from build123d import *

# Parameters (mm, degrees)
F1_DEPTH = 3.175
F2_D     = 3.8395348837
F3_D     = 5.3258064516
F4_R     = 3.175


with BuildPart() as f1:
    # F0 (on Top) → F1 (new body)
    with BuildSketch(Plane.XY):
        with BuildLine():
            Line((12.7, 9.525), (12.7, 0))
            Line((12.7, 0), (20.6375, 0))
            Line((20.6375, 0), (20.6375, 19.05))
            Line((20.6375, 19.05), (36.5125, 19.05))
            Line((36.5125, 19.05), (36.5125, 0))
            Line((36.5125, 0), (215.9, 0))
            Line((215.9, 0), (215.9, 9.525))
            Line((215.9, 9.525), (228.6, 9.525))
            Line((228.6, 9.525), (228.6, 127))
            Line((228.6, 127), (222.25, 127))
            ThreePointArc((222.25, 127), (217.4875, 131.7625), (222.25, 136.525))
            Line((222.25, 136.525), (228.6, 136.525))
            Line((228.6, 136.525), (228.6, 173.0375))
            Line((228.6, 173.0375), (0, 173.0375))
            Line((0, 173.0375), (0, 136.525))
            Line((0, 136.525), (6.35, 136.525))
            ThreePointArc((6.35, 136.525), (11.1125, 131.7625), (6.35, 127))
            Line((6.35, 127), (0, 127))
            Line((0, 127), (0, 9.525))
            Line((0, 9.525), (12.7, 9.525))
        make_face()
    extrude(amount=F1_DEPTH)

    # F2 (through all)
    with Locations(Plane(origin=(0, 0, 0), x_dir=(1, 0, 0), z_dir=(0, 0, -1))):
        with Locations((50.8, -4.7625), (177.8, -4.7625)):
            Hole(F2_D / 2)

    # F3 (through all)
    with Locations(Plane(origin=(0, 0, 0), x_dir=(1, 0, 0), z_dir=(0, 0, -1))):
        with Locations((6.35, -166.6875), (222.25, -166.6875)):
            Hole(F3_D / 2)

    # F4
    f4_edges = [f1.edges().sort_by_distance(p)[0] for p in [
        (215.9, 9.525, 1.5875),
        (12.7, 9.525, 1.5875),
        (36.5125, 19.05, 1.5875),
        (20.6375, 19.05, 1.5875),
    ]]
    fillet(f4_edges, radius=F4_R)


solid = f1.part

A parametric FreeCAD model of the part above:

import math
import FreeCAD as App
import Part
import Sketcher
Q = App.Units.Quantity


def edges_at(feature, points):
    """Names of the edges that pass closest to the given points."""
    edges = feature.Shape.Edges
    near = lambda p: min(range(len(edges)), key=lambda i: edges[i].distToShape(Part.Vertex(*p))[0])
    return sorted({f"Edge{near(p) + 1}" for p in points})

doc = App.newDocument("Part")
body = doc.addObject("PartDesign::Body", "Body")

sketch1 = body.newObject("Sketcher::SketchObject", "Sketch")
sketch1.AttachmentSupport = (doc.getObject("XY_Plane"), [""])
sketch1.MapMode = "FlatFace"
sketch1.addGeometry([
    Part.LineSegment(App.Vector(12.7, 9.5, 0), App.Vector(12.7, 0, 0)),
    Part.LineSegment(App.Vector(12.7, 0, 0), App.Vector(20.6, 0, 0)),
    Part.LineSegment(App.Vector(20.6, 0, 0), App.Vector(20.6, 19.1, 0)),
    Part.LineSegment(App.Vector(20.6, 19.1, 0), App.Vector(36.5, 19.1, 0)),
    Part.LineSegment(App.Vector(36.5, 19.1, 0), App.Vector(36.5, 0, 0)),
    Part.LineSegment(App.Vector(36.5, 0, 0), App.Vector(215.9, 0, 0)),
    Part.LineSegment(App.Vector(215.9, 0, 0), App.Vector(215.9, 9.5, 0)),
    Part.LineSegment(App.Vector(215.9, 9.5, 0), App.Vector(228.6, 9.5, 0)),
    Part.LineSegment(App.Vector(228.6, 9.5, 0), App.Vector(228.6, 127, 0)),
    Part.LineSegment(App.Vector(228.6, 127, 0), App.Vector(222.2, 127, 0)),
    Part.ArcOfCircle(Part.Circle(App.Vector(222.2, 131.8, 0), App.Vector(0, 0, 1), 4.8), math.radians(90), math.radians(270)),
    Part.LineSegment(App.Vector(222.2, 136.5, 0), App.Vector(228.6, 136.5, 0)),
    Part.LineSegment(App.Vector(228.6, 136.5, 0), App.Vector(228.6, 173, 0)),
    Part.LineSegment(App.Vector(228.6, 173, 0), App.Vector(0, 173, 0)),
    Part.LineSegment(App.Vector(0, 173, 0), App.Vector(0, 136.5, 0)),
    Part.LineSegment(App.Vector(0, 136.5, 0), App.Vector(6.3, 136.5, 0)),
    Part.ArcOfCircle(Part.Circle(App.Vector(6.3, 131.8, 0), App.Vector(0, 0, 1), 4.8), math.radians(-90), math.radians(90)),
    Part.LineSegment(App.Vector(6.3, 127, 0), App.Vector(0, 127, 0)),
    Part.LineSegment(App.Vector(0, 127, 0), App.Vector(0, 9.5, 0)),
    Part.LineSegment(App.Vector(0, 9.5, 0), App.Vector(12.7, 9.5, 0)),
], False)
sketch1.addConstraint([
    Sketcher.Constraint("Coincident", 0, 2, 1, 1),
    Sketcher.Constraint("Coincident", 1, 2, 2, 1),
    Sketcher.Constraint("Coincident", 2, 2, 3, 1),
    Sketcher.Constraint("Coincident", 3, 2, 4, 1),
    Sketcher.Constraint("Coincident", 4, 2, 5, 1),
    Sketcher.Constraint("Coincident", 5, 2, 6, 1),
    Sketcher.Constraint("Coincident", 6, 2, 7, 1),
    Sketcher.Constraint("Coincident", 7, 2, 8, 1),
    Sketcher.Constraint("Coincident", 8, 2, 9, 1),
    Sketcher.Constraint("Tangent", 9, 2, 10, 2),
    Sketcher.Constraint("Tangent", 10, 1, 11, 1),
    Sketcher.Constraint("Coincident", 11, 2, 12, 1),
    Sketcher.Constraint("Coincident", 12, 2, 13, 1),
    Sketcher.Constraint("Coincident", 13, 2, 14, 1),
    Sketcher.Constraint("Coincident", 14, 2, 15, 1),
    Sketcher.Constraint("Tangent", 15, 2, 16, 2),
    Sketcher.Constraint("Tangent", 16, 1, 17, 1),
    Sketcher.Constraint("Coincident", 17, 2, 18, 1),
    Sketcher.Constraint("Coincident", 18, 2, 19, 1),
    Sketcher.Constraint("Coincident", 19, 2, 0, 1),
    Sketcher.Constraint("Vertical", 0),
    Sketcher.Constraint("Horizontal", 1),
    Sketcher.Constraint("Vertical", 2),
    Sketcher.Constraint("Horizontal", 3),
    Sketcher.Constraint("Vertical", 4),
    Sketcher.Constraint("Horizontal", 5),
    Sketcher.Constraint("Vertical", 6),
    Sketcher.Constraint("Horizontal", 7),
    Sketcher.Constraint("Vertical", 8),
    Sketcher.Constraint("Horizontal", 9),
    Sketcher.Constraint("Horizontal", 11),
    Sketcher.Constraint("Vertical", 12),
    Sketcher.Constraint("Horizontal", 13),
    Sketcher.Constraint("Vertical", 14),
    Sketcher.Constraint("Horizontal", 15),
    Sketcher.Constraint("Horizontal", 17),
    Sketcher.Constraint("Vertical", 18),
    Sketcher.Constraint("Horizontal", 19),
    Sketcher.Constraint("Equal", 10, 16),
    Sketcher.Constraint("PointOnObject", 0, 2, -1),
    Sketcher.Constraint("PointOnObject", 4, 2, -1),
    Sketcher.Constraint("PointOnObject", 13, 2, -2),
    Sketcher.Constraint("PointOnObject", 17, 2, -2),
    Sketcher.Constraint("Horizontal", 10, 3, 16, 3),
    Sketcher.Constraint("Horizontal", 7, 2, 18, 2),
    Sketcher.Constraint("Vertical", 8, 2, 11, 2),
    Sketcher.Constraint("Equal", 11, 15),
    Sketcher.Constraint("Equal", 7, 19),
    Sketcher.Constraint("DistanceX", 13, 2, 13, 1, Q("9 in")),
    Sketcher.Constraint("DistanceX", 7, 1, 7, 2, Q("0.5 in")),
    Sketcher.Constraint("DistanceY", -1, 1, 8, 2, Q("5 in")),
    Sketcher.Constraint("Radius", 10, Q("0.1875 in")),
    Sketcher.Constraint("DistanceY", 6, 2, 10, 1, Q("5 in")),
    Sketcher.Constraint("DistanceX", 9, 2, 9, 1, Q("0.25 in")),
    Sketcher.Constraint("DistanceY", 2, 1, 2, 2, Q("0.75 in")),
    Sketcher.Constraint("DistanceX", 1, 1, 1, 2, Q("0.3125 in")),
    Sketcher.Constraint("DistanceX", 3, 1, 3, 2, Q("0.625 in")),
    Sketcher.Constraint("DistanceY", 12, 1, 12, 2, Q("1.4375 in")),
])
pad1 = body.newObject("PartDesign::Pad", "Pad")
pad1.Profile = sketch1
pad1.Length = Q("0.125 in")

sketch2 = body.newObject("Sketcher::SketchObject", "Sketch001")
sketch2.AttachmentSupport = (doc.getObject("XY_Plane"), [""])
sketch2.MapMode = "FlatFace"
sketch2.addGeometry([
    Part.Circle(App.Vector(50.8, 4.8, 0), App.Vector(0, 0, 1), 1.9),
    Part.Circle(App.Vector(177.8, 4.8, 0), App.Vector(0, 0, 1), 1.9),
], False)
sketch2.addConstraint([
    Sketcher.Constraint("Equal", 0, 1),
    Sketcher.Constraint("Horizontal", 0, 3, 1, 3),
    Sketcher.Constraint("DistanceX", -1, 1, 0, 3, Q("2 in")),
    Sketcher.Constraint("DistanceX", -1, 1, 1, 3, Q("7 in")),
    Sketcher.Constraint("DistanceY", -1, 1, 0, 3, Q("0.1875 in")),
    Sketcher.Constraint("Diameter", 0, 3.839535),
])
doc.recompute()
hole = body.newObject("PartDesign::Hole", "Hole")
hole.Profile = sketch2
hole.ThreadType = "None"
hole.Diameter = 3.839535
hole.DepthType = "ThroughAll"
hole.Reversed = True

sketch3 = body.newObject("Sketcher::SketchObject", "Sketch002")
sketch3.AttachmentSupport = (doc.getObject("XY_Plane"), [""])
sketch3.MapMode = "FlatFace"
sketch3.addGeometry([
    Part.Circle(App.Vector(6.3, 166.7, 0), App.Vector(0, 0, 1), 2.7),
    Part.Circle(App.Vector(222.2, 166.7, 0), App.Vector(0, 0, 1), 2.7),
], False)
sketch3.addConstraint([
    Sketcher.Constraint("Equal", 0, 1),
    Sketcher.Constraint("Horizontal", 0, 3, 1, 3),
    Sketcher.Constraint("DistanceX", 0, 3, 1, 3, Q("8.5 in")),
    Sketcher.Constraint("DistanceX", -1, 1, 0, 3, Q("0.25 in")),
    Sketcher.Constraint("DistanceY", -1, 1, 0, 3, Q("6.5625 in")),
    Sketcher.Constraint("Diameter", 0, 5.325806),
])
doc.recompute()
hole2 = body.newObject("PartDesign::Hole", "Hole001")
hole2.Profile = sketch3
hole2.ThreadType = "None"
hole2.Diameter = 5.325806
hole2.DepthType = "ThroughAll"
hole2.Reversed = True
doc.recompute()

fillet = body.newObject("PartDesign::Fillet", "Fillet")
fillet.Base = (hole2, edges_at(hole2, [
    (215.9, 9.525, 1.587),
    (12.7, 9.525, 1.587),
    (36.513, 19.05, 1.587),
    (20.637, 19.05, 1.587),
]))
fillet.Radius = Q("0.125 in")

doc.recompute()
